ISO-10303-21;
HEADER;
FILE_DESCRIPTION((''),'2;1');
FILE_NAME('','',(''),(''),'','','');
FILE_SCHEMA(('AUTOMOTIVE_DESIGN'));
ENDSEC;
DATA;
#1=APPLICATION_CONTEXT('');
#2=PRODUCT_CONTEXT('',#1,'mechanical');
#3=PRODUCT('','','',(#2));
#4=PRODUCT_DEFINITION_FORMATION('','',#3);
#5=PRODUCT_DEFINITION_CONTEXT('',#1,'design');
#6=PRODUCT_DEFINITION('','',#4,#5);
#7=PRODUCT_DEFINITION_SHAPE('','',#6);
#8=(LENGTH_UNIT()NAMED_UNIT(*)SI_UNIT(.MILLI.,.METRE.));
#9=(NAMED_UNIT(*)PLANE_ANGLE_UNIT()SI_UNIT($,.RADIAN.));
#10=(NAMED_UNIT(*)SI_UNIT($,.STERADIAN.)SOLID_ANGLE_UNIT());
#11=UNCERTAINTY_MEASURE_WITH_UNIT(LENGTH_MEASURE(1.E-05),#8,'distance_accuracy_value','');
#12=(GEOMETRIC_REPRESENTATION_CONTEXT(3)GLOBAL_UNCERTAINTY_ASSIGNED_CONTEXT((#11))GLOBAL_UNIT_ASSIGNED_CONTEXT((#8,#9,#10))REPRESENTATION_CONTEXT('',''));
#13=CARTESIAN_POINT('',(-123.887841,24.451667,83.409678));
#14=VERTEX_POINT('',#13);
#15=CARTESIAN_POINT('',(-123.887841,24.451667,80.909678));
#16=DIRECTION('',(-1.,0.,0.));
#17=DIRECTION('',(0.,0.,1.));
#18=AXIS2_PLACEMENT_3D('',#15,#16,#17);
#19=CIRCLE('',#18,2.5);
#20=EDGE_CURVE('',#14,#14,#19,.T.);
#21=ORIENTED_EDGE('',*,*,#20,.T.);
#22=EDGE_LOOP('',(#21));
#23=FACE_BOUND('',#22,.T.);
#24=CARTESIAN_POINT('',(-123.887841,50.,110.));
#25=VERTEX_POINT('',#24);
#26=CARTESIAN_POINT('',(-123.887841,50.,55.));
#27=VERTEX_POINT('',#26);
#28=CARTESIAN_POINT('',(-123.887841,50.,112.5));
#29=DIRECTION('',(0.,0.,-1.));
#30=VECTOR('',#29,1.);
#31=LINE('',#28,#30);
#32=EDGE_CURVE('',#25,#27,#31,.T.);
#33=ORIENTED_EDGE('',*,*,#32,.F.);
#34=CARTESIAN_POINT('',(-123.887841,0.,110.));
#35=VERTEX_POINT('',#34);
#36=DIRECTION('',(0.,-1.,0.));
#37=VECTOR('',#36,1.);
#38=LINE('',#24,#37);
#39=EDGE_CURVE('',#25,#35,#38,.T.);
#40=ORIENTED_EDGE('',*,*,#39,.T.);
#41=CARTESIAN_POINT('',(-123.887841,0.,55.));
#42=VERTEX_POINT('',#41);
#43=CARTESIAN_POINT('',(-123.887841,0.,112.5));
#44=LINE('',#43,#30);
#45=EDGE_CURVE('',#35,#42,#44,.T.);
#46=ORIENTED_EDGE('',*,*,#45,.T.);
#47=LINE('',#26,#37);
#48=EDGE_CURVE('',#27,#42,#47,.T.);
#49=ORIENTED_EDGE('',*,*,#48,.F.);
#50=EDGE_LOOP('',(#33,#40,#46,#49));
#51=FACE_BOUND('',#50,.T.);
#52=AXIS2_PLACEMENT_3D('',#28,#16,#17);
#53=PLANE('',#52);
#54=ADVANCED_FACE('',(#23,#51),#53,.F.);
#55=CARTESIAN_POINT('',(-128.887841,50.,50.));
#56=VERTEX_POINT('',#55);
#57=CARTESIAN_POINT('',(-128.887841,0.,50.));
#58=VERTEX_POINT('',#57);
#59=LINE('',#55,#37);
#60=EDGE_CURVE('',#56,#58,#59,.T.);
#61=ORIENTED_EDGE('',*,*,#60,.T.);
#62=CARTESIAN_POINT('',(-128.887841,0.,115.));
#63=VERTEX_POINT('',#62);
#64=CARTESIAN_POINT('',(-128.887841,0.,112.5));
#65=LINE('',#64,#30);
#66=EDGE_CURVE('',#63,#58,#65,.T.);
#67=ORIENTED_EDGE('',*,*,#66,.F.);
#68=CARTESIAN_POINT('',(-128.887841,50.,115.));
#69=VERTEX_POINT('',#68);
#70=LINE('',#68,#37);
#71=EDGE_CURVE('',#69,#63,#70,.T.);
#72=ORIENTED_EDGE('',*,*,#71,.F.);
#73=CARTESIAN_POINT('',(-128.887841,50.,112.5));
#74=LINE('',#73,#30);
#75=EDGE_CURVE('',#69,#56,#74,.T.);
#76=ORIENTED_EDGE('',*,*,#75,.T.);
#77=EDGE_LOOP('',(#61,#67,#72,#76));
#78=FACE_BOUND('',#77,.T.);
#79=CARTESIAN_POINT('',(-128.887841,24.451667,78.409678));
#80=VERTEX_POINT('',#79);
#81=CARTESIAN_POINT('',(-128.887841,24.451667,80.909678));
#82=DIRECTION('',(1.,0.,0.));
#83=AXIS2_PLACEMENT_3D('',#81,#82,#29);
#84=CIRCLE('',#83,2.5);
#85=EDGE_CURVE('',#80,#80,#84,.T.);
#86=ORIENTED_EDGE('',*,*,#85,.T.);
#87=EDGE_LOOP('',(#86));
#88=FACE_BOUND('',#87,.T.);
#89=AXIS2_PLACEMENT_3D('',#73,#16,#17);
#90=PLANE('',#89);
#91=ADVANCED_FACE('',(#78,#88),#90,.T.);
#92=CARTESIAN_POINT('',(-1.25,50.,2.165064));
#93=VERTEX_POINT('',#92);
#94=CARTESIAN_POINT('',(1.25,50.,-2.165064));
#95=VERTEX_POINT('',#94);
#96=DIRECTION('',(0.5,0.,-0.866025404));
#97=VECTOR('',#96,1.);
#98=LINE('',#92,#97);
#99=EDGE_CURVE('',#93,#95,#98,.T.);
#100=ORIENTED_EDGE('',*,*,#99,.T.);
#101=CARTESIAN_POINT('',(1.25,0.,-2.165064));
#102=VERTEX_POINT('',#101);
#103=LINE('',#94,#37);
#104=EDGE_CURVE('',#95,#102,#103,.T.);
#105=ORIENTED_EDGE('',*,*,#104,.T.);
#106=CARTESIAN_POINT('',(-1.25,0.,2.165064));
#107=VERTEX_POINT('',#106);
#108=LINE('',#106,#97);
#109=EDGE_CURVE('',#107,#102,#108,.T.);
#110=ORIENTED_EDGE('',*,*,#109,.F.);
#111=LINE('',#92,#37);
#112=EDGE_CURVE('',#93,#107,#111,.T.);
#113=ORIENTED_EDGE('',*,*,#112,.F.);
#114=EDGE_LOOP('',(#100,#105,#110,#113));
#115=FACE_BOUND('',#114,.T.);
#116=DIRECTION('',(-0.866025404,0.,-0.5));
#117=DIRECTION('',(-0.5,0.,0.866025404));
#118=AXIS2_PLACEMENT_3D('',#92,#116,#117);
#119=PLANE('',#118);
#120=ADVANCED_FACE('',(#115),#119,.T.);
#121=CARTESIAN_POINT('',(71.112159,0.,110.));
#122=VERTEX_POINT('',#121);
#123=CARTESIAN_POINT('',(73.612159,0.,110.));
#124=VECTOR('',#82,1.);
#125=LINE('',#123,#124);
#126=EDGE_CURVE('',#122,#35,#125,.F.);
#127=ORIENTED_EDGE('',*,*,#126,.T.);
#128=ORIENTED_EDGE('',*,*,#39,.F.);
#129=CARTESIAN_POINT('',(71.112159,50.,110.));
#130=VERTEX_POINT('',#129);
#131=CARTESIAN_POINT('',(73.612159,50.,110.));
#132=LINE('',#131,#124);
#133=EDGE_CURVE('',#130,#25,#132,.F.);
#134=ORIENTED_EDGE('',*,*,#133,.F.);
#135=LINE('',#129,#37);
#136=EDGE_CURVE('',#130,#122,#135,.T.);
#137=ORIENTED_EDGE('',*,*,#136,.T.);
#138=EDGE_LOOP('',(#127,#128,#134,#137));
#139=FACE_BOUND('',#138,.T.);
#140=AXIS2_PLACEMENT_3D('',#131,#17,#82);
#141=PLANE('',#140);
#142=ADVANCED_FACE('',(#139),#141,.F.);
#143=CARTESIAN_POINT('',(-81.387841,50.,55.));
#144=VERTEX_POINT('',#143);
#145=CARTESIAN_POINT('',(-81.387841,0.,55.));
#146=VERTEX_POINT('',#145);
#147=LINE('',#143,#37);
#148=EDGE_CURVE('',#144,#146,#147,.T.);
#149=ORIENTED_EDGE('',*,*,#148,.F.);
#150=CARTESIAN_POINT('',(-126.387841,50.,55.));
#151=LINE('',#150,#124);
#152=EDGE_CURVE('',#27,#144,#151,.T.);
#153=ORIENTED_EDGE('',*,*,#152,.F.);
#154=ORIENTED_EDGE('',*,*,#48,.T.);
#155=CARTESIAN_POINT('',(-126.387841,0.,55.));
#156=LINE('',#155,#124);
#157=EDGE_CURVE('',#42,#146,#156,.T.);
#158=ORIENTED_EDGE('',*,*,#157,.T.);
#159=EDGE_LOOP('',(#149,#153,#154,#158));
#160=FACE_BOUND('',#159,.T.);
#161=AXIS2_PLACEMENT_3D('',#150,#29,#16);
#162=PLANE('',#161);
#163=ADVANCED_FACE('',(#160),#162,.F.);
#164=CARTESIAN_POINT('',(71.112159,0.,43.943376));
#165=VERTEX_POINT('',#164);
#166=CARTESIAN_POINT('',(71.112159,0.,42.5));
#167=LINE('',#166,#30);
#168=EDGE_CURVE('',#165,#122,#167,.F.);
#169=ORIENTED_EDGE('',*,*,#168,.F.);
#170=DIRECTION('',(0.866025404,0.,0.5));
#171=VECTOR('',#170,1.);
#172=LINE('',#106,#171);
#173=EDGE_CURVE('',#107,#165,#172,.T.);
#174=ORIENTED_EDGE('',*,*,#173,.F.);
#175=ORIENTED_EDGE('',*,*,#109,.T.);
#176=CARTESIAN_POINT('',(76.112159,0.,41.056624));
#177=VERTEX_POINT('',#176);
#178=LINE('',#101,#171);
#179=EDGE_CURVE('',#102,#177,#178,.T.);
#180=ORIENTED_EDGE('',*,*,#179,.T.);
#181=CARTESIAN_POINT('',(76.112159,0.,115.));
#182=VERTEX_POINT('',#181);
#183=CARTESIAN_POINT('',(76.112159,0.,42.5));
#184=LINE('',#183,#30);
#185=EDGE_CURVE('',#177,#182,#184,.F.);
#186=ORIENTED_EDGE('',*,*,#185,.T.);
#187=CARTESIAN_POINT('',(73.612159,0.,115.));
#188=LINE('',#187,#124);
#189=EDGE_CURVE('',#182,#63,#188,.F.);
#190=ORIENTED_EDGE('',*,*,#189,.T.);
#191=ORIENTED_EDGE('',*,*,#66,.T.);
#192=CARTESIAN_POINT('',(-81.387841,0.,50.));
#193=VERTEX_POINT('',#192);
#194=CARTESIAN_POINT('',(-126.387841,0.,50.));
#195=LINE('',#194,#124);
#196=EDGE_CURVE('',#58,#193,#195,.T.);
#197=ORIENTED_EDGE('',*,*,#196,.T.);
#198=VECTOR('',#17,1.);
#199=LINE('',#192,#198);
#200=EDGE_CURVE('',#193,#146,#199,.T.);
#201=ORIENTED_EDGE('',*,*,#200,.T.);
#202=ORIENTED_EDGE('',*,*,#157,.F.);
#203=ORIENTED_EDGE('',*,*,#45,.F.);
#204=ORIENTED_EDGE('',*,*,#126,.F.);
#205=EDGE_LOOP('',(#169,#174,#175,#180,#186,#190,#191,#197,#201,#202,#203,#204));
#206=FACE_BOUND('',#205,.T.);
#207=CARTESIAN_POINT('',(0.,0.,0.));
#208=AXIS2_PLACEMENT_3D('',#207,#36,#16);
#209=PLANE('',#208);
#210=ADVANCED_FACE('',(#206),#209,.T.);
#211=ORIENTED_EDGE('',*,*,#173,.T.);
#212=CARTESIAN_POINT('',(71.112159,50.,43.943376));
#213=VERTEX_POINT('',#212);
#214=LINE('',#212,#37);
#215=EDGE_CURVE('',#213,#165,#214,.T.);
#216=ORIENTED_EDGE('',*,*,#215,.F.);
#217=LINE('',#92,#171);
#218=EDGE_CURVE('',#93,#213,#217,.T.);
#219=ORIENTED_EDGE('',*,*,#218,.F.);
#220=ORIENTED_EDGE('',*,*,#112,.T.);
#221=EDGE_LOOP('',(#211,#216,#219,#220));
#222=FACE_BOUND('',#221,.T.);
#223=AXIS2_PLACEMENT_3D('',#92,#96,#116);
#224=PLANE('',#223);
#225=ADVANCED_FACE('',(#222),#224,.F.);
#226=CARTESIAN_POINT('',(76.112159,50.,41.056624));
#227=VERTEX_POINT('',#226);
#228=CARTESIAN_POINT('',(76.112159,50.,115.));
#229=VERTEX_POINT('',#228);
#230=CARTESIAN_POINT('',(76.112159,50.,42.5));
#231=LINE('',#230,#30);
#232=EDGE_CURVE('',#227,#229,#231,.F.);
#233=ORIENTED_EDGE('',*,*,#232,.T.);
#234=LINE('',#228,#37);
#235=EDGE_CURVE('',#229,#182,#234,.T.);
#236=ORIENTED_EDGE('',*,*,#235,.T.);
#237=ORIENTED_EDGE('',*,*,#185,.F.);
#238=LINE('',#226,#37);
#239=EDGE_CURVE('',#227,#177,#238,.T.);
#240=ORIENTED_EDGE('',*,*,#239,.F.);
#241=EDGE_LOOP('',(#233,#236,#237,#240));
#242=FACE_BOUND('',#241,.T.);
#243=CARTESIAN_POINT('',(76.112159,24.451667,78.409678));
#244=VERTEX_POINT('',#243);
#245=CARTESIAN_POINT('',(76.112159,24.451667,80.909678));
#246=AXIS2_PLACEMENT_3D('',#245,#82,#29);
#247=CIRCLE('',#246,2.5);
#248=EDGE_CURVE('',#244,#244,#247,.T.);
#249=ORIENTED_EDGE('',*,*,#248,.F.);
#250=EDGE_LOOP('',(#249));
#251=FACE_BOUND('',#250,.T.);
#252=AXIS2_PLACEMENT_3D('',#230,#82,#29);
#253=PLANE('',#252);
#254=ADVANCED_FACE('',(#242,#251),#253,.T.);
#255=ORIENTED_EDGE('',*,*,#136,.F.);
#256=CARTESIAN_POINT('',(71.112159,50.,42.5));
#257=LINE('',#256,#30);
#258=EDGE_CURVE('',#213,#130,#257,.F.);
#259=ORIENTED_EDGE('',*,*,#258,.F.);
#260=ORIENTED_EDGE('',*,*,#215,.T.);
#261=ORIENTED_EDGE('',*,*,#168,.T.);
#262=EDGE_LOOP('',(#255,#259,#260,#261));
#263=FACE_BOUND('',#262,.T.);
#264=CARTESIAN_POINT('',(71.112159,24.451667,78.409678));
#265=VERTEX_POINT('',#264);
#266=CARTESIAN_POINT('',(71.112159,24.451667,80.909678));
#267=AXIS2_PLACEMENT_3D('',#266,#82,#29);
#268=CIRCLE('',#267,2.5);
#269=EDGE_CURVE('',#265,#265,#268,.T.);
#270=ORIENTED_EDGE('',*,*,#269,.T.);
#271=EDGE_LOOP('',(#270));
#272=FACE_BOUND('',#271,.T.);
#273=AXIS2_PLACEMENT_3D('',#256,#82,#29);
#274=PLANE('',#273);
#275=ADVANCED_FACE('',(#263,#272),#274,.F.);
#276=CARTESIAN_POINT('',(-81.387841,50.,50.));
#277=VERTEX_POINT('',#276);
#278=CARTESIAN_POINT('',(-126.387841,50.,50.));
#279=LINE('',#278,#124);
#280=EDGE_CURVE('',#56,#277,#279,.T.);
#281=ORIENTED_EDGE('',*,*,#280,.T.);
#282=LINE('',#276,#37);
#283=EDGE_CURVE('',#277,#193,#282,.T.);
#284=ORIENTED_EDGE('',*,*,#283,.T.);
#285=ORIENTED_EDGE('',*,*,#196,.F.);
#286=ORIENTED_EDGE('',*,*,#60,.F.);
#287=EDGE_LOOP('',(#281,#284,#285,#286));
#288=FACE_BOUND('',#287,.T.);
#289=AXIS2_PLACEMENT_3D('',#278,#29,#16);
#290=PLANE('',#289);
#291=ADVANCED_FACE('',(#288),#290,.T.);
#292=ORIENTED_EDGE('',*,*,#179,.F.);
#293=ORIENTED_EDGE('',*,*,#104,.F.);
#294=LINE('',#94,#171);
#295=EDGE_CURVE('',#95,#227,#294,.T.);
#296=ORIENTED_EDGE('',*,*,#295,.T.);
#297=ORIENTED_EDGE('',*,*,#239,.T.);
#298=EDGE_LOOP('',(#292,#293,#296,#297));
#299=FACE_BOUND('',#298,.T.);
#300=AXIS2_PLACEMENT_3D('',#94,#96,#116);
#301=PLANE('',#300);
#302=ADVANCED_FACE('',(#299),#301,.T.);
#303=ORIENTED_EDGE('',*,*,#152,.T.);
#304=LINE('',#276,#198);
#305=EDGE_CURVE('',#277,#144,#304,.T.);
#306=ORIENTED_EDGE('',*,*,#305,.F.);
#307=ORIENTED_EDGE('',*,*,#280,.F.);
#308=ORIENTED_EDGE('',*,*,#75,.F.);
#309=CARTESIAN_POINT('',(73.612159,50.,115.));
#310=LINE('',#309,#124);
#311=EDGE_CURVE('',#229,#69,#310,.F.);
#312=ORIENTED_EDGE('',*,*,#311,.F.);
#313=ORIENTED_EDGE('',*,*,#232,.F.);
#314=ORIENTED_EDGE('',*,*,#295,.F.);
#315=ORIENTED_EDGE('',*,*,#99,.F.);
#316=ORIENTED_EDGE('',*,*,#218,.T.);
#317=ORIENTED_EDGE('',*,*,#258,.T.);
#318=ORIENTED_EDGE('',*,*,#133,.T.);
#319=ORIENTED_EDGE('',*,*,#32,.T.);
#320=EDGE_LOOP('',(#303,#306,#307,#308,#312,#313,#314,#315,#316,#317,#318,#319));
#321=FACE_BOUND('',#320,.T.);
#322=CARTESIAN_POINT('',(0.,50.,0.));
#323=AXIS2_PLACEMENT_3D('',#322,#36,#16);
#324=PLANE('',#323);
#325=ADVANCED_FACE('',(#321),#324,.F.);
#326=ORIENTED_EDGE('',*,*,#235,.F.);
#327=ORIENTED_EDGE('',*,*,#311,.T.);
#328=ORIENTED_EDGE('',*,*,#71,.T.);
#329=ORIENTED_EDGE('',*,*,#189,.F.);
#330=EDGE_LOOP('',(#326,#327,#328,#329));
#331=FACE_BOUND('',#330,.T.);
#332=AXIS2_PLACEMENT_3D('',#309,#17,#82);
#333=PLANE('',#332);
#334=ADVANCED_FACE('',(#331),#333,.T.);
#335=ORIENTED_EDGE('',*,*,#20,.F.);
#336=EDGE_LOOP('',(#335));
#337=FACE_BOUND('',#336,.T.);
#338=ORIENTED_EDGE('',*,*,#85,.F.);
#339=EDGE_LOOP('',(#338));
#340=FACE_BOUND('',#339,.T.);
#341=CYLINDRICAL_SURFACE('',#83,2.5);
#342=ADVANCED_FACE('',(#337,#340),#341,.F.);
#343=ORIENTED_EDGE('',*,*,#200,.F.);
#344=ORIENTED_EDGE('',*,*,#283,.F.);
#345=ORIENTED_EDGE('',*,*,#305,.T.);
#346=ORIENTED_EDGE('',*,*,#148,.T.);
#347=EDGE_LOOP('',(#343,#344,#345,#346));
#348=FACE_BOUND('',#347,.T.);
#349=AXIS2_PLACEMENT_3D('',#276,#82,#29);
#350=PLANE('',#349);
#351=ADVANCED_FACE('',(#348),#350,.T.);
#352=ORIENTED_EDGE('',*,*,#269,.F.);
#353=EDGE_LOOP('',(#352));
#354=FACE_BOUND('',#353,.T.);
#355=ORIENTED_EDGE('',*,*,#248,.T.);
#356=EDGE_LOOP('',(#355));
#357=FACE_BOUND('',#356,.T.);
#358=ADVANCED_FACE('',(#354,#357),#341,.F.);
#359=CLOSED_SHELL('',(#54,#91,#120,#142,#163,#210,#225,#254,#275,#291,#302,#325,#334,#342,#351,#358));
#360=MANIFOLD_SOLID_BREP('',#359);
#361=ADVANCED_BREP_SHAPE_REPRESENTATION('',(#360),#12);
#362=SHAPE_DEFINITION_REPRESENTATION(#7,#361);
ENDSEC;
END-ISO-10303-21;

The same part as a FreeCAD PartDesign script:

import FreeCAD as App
import Part
import Sketcher
from FreeCAD import Vector
Q = App.Units.Quantity

doc = App.newDocument("Part")
body = doc.addObject("PartDesign::Body", "Body")

# Sketch on XZ plane
sketch1 = doc.addObject("Sketcher::SketchObject", "Sketch")
body.addObject(sketch1)
sketch1.AttachmentSupport = (doc.XZ_Plane, [""])
sketch1.MapMode = "FlatFace"
sketch1.addGeometry([
    Part.LineSegment(Vector(-1.2, 2.2, 0), Vector(71.1, 43.9, 0)),  # 0
    Part.LineSegment(Vector(71.1, 43.9, 0), Vector(71.1, 110, 0)),  # 1
    Part.LineSegment(Vector(71.1, 110, 0), Vector(-123.9, 110, 0)),  # 2
    Part.LineSegment(Vector(-123.9, 110, 0), Vector(-123.9, 55, 0)),  # 3
    Part.LineSegment(Vector(-123.9, 55, 0), Vector(-81.4, 55, 0)),  # 4
    Part.LineSegment(Vector(-81.4, 55, 0), Vector(-81.4, 50, 0)),  # 5
    Part.LineSegment(Vector(-81.4, 50, 0), Vector(-128.9, 50, 0)),  # 6
    Part.LineSegment(Vector(-128.9, 50, 0), Vector(-128.9, 115, 0)),  # 7
    Part.LineSegment(Vector(-128.9, 115, 0), Vector(76.1, 115, 0)),  # 8
    Part.LineSegment(Vector(76.1, 115, 0), Vector(76.1, 41.1, 0)),  # 9
    Part.LineSegment(Vector(76.1, 41.1, 0), Vector(1.2, -2.2, 0)),  # 10
    Part.LineSegment(Vector(1.2, -2.2, 0), Vector(-1.2, 2.2, 0)),  # 11
], False)
sketch1.addConstraint([
    Sketcher.Constraint("Coincident", 0, 2, 1, 1),
    Sketcher.Constraint("Coincident", 1, 2, 2, 1),
    Sketcher.Constraint("Coincident", 2, 2, 3, 1),
    Sketcher.Constraint("Coincident", 3, 2, 4, 1),
    Sketcher.Constraint("Coincident", 4, 2, 5, 1),
    Sketcher.Constraint("Coincident", 5, 2, 6, 1),
    Sketcher.Constraint("Coincident", 6, 2, 7, 1),
    Sketcher.Constraint("Coincident", 7, 2, 8, 1),
    Sketcher.Constraint("Coincident", 8, 2, 9, 1),
    Sketcher.Constraint("Coincident", 9, 2, 10, 1),
    Sketcher.Constraint("Coincident", 10, 2, 11, 1),
    Sketcher.Constraint("Coincident", 11, 2, 0, 1),
    Sketcher.Constraint("Vertical", 1),
    Sketcher.Constraint("Horizontal", 2),
    Sketcher.Constraint("Vertical", 3),
    Sketcher.Constraint("Horizontal", 4),
    Sketcher.Constraint("Vertical", 5),
    Sketcher.Constraint("Horizontal", 6),
    Sketcher.Constraint("Vertical", 7),
    Sketcher.Constraint("Horizontal", 8),
    Sketcher.Constraint("Vertical", 9),
    Sketcher.Constraint("Symmetric", 10, 2, 11, 2, -1, 1),
    Sketcher.Constraint("Parallel", 0, 10),
    Sketcher.Constraint("Perpendicular", 10, 11),
    Sketcher.Constraint("DistanceX", 2, 2, 2, 1, 195.0),
    Sketcher.Constraint("DistanceX", 8, 1, 8, 2, 205.0),
    Sketcher.Constraint("DistanceY", 3, 2, 3, 1, 55.0),
    Sketcher.Constraint("DistanceY", 5, 2, 5, 1, 5.0),
    Sketcher.Constraint("DistanceY", 7, 1, 7, 2, 65.0),
    Sketcher.Constraint("Angle", 0, Q("30 deg")),
    Sketcher.Constraint("Distance", 11, 5.0),
    Sketcher.Constraint("DistanceX", 4, 1, 4, 2, 42.5),
    Sketcher.Constraint("DistanceX", 6, 2, 6, 1, 47.5),
    Sketcher.Constraint("DistanceY", -1, 1, 1, 2, 110.0),
    Sketcher.Constraint("DistanceY", 1, 1, 1, 2, 66.056624),
])
pad1 = doc.addObject("PartDesign::Pad", "Pad")
body.addObject(pad1)
pad1.Profile = sketch1
pad1.Length = 50
pad1.Reversed = True

# Sketch on YZ plane
sketch2 = doc.addObject("Sketcher::SketchObject", "Sketch001")
body.addObject(sketch2)
sketch2.AttachmentSupport = (doc.YZ_Plane, [""])
sketch2.MapMode = "FlatFace"
sketch2.AttachmentOffset = App.Placement(Vector(0, 0, 76.112159), App.Rotation())
sketch2.addGeometry(Part.Circle(Vector(24.5, 80.9, 0), Vector(0, 0, 1), 2.5), False)
sketch2.addConstraint([
    Sketcher.Constraint("Diameter", 0, 5.0),
    Sketcher.Constraint("DistanceX", -1, 1, 0, 3, 24.451667),
    Sketcher.Constraint("DistanceY", -1, 1, 0, 3, 80.909678),
])
pocket1 = doc.addObject("PartDesign::Pocket", "Pocket")
body.addObject(pocket1)
pocket1.Profile = sketch2
pocket1.Type = "ThroughAll"

doc.recompute()
